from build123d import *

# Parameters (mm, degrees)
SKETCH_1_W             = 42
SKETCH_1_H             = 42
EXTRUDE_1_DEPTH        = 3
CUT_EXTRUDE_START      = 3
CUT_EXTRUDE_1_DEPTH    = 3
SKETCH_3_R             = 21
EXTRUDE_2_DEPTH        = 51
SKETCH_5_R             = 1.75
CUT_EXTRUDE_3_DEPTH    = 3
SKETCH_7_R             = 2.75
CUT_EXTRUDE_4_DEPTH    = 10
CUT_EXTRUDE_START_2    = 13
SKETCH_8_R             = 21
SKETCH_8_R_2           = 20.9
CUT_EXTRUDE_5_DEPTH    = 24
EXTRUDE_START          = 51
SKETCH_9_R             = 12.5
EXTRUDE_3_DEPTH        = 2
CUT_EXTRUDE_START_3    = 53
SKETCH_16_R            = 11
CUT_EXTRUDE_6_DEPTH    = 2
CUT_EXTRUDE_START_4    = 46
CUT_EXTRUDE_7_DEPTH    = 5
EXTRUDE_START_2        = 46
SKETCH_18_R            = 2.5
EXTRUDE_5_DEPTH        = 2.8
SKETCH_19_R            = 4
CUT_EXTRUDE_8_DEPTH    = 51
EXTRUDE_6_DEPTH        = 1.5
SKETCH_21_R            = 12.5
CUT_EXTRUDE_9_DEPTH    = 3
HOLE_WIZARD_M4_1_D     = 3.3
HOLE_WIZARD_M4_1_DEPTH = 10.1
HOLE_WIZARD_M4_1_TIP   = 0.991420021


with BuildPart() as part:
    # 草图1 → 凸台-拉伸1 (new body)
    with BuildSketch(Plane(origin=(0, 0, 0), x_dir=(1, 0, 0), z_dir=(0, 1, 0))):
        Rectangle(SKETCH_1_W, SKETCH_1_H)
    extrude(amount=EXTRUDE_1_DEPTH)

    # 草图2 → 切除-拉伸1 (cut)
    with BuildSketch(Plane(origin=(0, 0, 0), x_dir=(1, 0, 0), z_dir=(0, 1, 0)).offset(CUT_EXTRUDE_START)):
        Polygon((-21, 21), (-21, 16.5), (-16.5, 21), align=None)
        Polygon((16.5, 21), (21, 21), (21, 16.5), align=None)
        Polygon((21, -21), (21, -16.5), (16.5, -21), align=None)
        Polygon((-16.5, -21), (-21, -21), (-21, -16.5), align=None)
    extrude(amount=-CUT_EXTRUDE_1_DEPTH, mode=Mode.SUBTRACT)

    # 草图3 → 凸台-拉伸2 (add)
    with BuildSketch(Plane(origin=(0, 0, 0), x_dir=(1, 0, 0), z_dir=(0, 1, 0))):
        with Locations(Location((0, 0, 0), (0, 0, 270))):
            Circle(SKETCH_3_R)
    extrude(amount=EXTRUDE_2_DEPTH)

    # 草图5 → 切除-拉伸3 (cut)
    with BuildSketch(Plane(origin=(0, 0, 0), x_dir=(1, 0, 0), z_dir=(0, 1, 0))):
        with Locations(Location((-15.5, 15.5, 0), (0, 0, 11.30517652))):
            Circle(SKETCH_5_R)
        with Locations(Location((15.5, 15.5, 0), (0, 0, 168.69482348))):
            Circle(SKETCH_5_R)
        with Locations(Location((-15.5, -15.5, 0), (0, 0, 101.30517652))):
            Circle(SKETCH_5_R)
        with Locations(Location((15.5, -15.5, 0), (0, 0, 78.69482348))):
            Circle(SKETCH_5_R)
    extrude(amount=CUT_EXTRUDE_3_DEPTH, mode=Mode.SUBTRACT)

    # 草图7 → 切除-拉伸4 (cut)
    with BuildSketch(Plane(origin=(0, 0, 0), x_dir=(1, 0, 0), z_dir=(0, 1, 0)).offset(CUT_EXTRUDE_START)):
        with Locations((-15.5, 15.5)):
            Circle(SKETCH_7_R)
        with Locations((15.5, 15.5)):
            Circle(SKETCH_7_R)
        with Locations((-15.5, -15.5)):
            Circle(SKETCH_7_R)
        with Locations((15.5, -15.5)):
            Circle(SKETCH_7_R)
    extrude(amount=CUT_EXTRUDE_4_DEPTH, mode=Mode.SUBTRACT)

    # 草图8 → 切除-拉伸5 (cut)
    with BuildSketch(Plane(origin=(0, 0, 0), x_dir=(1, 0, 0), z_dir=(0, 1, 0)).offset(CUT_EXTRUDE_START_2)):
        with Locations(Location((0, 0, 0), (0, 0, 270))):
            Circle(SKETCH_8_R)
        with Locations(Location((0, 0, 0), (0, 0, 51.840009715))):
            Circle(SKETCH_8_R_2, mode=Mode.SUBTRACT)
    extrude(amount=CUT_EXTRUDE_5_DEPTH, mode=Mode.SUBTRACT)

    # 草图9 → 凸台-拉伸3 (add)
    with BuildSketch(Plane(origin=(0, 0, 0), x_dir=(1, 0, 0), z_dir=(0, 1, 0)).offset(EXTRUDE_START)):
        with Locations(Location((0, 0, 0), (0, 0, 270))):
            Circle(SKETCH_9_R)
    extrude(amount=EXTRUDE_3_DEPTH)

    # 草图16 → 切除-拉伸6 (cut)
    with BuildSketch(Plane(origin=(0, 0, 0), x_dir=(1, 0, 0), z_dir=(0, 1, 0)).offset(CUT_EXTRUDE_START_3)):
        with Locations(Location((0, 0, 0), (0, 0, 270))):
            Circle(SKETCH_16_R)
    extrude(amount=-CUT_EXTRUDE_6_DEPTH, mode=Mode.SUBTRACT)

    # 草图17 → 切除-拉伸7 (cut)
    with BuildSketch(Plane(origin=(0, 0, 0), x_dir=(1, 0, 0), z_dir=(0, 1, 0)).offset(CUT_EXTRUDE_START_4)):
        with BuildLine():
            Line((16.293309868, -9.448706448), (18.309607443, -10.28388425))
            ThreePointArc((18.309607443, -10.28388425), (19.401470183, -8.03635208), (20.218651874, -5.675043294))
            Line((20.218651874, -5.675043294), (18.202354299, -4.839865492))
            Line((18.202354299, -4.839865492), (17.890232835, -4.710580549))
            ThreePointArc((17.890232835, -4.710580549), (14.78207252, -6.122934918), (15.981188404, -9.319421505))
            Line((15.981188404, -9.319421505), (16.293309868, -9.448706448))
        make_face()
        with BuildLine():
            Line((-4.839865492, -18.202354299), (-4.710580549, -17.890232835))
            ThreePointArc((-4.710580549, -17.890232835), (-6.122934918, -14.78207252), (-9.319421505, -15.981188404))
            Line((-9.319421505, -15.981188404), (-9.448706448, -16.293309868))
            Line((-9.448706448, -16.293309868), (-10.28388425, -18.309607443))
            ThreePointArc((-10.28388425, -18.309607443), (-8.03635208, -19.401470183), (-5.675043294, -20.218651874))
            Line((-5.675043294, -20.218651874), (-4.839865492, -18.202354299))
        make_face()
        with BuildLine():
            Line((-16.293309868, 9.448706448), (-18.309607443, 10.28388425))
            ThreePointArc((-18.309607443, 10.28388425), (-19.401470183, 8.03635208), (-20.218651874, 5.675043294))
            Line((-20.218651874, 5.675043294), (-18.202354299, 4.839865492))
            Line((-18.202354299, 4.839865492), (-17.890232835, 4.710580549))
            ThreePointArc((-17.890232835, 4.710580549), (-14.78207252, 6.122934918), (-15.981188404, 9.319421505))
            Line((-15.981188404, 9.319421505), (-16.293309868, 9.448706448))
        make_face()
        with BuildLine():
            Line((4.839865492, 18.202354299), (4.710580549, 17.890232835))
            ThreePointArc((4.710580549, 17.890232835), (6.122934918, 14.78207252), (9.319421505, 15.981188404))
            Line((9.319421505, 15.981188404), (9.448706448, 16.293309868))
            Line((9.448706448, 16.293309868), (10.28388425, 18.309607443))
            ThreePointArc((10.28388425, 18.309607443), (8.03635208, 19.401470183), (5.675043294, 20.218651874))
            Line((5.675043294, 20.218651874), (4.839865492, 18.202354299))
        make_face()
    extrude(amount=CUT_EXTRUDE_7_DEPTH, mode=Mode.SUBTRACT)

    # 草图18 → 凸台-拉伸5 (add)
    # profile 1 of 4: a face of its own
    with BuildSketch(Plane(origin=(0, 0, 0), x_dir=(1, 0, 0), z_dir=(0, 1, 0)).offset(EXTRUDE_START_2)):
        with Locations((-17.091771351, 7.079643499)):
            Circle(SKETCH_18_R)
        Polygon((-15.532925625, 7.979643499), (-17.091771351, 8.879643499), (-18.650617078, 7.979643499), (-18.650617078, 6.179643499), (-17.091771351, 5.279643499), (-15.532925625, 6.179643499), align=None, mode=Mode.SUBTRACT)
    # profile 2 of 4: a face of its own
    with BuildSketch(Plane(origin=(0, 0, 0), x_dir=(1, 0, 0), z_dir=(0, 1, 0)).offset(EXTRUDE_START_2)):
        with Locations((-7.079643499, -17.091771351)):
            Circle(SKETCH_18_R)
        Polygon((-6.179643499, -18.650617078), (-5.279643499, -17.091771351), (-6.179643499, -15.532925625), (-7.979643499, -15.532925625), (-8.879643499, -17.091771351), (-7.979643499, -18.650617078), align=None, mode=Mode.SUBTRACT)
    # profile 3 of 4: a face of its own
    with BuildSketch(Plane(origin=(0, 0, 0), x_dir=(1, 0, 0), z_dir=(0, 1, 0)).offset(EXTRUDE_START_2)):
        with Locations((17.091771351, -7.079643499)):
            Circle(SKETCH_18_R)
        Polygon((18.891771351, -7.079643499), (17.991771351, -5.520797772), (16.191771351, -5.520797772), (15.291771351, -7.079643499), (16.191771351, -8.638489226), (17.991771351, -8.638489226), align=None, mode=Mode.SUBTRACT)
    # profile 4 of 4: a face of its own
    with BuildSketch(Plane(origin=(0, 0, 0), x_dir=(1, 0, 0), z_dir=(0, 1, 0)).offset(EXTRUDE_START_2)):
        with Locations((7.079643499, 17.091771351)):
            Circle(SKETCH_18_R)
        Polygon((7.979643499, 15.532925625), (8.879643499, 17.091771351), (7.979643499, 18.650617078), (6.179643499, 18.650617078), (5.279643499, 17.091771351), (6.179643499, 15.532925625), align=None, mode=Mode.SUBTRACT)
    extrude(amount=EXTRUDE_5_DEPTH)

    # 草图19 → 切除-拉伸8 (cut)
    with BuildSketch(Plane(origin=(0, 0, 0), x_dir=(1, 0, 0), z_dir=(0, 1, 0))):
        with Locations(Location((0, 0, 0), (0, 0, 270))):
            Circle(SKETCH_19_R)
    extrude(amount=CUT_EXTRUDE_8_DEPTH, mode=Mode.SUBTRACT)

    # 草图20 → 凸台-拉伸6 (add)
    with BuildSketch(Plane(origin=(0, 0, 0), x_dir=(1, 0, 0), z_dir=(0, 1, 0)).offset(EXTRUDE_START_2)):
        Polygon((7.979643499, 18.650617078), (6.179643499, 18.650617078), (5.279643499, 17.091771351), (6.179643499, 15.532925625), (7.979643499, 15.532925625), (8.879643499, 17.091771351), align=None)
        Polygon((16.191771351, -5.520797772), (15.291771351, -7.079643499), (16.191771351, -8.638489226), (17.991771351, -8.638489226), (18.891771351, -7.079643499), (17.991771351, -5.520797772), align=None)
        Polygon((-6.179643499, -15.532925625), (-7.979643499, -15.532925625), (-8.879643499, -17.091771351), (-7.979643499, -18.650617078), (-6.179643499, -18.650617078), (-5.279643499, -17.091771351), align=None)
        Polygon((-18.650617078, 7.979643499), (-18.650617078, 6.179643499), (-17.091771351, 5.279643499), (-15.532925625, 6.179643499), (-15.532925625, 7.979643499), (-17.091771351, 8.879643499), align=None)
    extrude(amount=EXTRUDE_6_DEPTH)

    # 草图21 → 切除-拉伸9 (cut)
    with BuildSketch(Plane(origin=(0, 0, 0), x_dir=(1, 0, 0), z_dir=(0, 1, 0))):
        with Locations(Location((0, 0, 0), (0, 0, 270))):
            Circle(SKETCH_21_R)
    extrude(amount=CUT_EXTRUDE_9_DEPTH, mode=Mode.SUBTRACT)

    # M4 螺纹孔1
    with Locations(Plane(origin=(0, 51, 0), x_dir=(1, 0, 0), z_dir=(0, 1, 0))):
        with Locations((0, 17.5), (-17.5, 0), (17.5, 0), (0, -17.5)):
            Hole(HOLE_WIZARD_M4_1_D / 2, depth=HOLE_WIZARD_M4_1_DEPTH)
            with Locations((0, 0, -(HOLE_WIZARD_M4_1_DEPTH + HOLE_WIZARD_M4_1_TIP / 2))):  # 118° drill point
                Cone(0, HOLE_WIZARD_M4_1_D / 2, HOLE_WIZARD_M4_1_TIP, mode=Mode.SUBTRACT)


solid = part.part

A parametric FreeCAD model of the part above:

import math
import FreeCAD as App
import Part
import Sketcher
Q = App.Units.Quantity

doc = App.newDocument("Part")
body = doc.addObject("PartDesign::Body", "Body")

# Sketch on XZ plane
sketch1 = body.newObject("Sketcher::SketchObject", "Sketch")
sketch1.AttachmentSupport = (doc.getObject("XZ_Plane"), [""])
sketch1.MapMode = "FlatFace"
sketch1.addGeometry([
    Part.LineSegment(App.Vector(-21, -21, 0), App.Vector(-21, 21, 0)),
    Part.LineSegment(App.Vector(-21, 21, 0), App.Vector(21, 21, 0)),
    Part.LineSegment(App.Vector(21, 21, 0), App.Vector(21, -21, 0)),
    Part.LineSegment(App.Vector(21, -21, 0), App.Vector(-21, -21, 0)),
], False)
sketch1.addConstraint([
    Sketcher.Constraint("Coincident", 0, 2, 1, 1),
    Sketcher.Constraint("Coincident", 1, 2, 2, 1),
    Sketcher.Constraint("Coincident", 2, 2, 3, 1),
    Sketcher.Constraint("Coincident", 3, 2, 0, 1),
    Sketcher.Constraint("Vertical", 0),
    Sketcher.Constraint("Horizontal", 1),
    Sketcher.Constraint("Vertical", 2),
    Sketcher.Constraint("Horizontal", 3),
    Sketcher.Constraint("Symmetric", 0, 2, 2, 2, -1, 1),
    Sketcher.Constraint("Equal", 3, 0),
    Sketcher.Constraint("DistanceX", 1, 1, 1, 2, 42.0),
])
pad1 = body.newObject("PartDesign::Pad", "Pad")
pad1.Profile = sketch1
pad1.Length = 3
pad1.Reversed = True

# Sketch on XZ plane
sketch2 = body.newObject("Sketcher::SketchObject", "Sketch001")
sketch2.AttachmentSupport = (doc.getObject("XZ_Plane"), [""])
sketch2.MapMode = "FlatFace"
sketch2.AttachmentOffset = App.Placement(App.Vector(0, 0, -3), App.Rotation())
sketch2.addGeometry([
    Part.LineSegment(App.Vector(-21, -21, 0), App.Vector(-21, -16.5, 0)),  # 0
    Part.LineSegment(App.Vector(-21, -16.5, 0), App.Vector(-16.5, -21, 0)),  # 1
    Part.LineSegment(App.Vector(-16.5, -21, 0), App.Vector(-21, -21, 0)),  # 2
    Part.LineSegment(App.Vector(21, -21, 0), App.Vector(16.5, -21, 0)),  # 3
    Part.LineSegment(App.Vector(16.5, -21, 0), App.Vector(21, -16.5, 0)),  # 4
    Part.LineSegment(App.Vector(21, -16.5, 0), App.Vector(21, -21, 0)),  # 5
    Part.LineSegment(App.Vector(21, 21, 0), App.Vector(21, 16.5, 0)),  # 6
    Part.LineSegment(App.Vector(21, 16.5, 0), App.Vector(16.5, 21, 0)),  # 7
    Part.LineSegment(App.Vector(16.5, 21, 0), App.Vector(21, 21, 0)),  # 8
    Part.LineSegment(App.Vector(-21, 21, 0), App.Vector(-16.5, 21, 0)),  # 9
    Part.LineSegment(App.Vector(-16.5, 21, 0), App.Vector(-21, 16.5, 0)),  # 10
    Part.LineSegment(App.Vector(-21, 16.5, 0), App.Vector(-21, 21, 0)),  # 11
], False)
sketch2.addConstraint([
    Sketcher.Constraint("Coincident", 0, 2, 1, 1),
    Sketcher.Constraint("Coincident", 1, 2, 2, 1),
    Sketcher.Constraint("Coincident", 2, 2, 0, 1),
    Sketcher.Constraint("Coincident", 3, 2, 4, 1),
    Sketcher.Constraint("Coincident", 4, 2, 5, 1),
    Sketcher.Constraint("Coincident", 5, 2, 3, 1),
    Sketcher.Constraint("Coincident", 6, 2, 7, 1),
    Sketcher.Constraint("Coincident", 7, 2, 8, 1),
    Sketcher.Constraint("Coincident", 8, 2, 6, 1),
    Sketcher.Constraint("Coincident", 9, 2, 10, 1),
    Sketcher.Constraint("Coincident", 10, 2, 11, 1),
    Sketcher.Constraint("Coincident", 11, 2, 9, 1),
    Sketcher.Constraint("Vertical", 0),
    Sketcher.Constraint("Horizontal", 2),
    Sketcher.Constraint("Horizontal", 3),
    Sketcher.Constraint("Vertical", 5),
    Sketcher.Constraint("Vertical", 6),
    Sketcher.Constraint("Horizontal", 8),
    Sketcher.Constraint("Horizontal", 9),
    Sketcher.Constraint("Vertical", 11),
    Sketcher.Constraint("Symmetric", 0, 2, 6, 2, -1, 1),
    Sketcher.Constraint("Symmetric", 1, 2, 7, 2, -1, 1),
    Sketcher.Constraint("Symmetric", 3, 2, 9, 2, -1, 1),
    Sketcher.Constraint("Symmetric", 4, 2, 10, 2, -1, 1),
    Sketcher.Constraint("Symmetric", 1, 2, 3, 2, -2),
    Sketcher.Constraint("Symmetric", 0, 2, 4, 2, -2),
    Sketcher.Constraint("Perpendicular", 1, 4),
    Sketcher.Constraint("DistanceX", 2, 2, 2, 1, 4.5),
    Sketcher.Constraint("DistanceX", 0, 2, -1, 1, 21.0),
    Sketcher.Constraint("DistanceY", 1, 2, -1, 1, 21.0),
])
pocket1 = body.newObject("PartDesign::Pocket", "Pocket")
pocket1.Profile = sketch2
pocket1.Length = 3
pocket1.Reversed = True

# Sketch on XZ plane
sketch3 = body.newObject("Sketcher::SketchObject", "Sketch002")
sketch3.AttachmentSupport = (doc.getObject("XZ_Plane"), [""])
sketch3.MapMode = "FlatFace"
sketch3.addGeometry(Part.Circle(App.Vector(0, 0, 0), App.Vector(0, 0, 1), 21), False)
sketch3.addConstraint([
    Sketcher.Constraint("Coincident", 0, 3, -1, 1),
    Sketcher.Constraint("Diameter", 0, 42.0),
])
pad2 = body.newObject("PartDesign::Pad", "Pad001")
pad2.Profile = sketch3
pad2.Length = 51
pad2.Reversed = True

# Sketch on XZ plane
sketch4 = body.newObject("Sketcher::SketchObject", "Sketch003")
sketch4.AttachmentSupport = (doc.getObject("XZ_Plane"), [""])
sketch4.MapMode = "FlatFace"
sketch4.addGeometry([
    Part.Circle(App.Vector(-15.5, -15.5, 0), App.Vector(0, 0, 1), 1.8),
    Part.Circle(App.Vector(15.5, -15.5, 0), App.Vector(0, 0, 1), 1.8),
    Part.Circle(App.Vector(-15.5, 15.5, 0), App.Vector(0, 0, 1), 1.8),
    Part.Circle(App.Vector(15.5, 15.5, 0), App.Vector(0, 0, 1), 1.8),
], False)
sketch4.addConstraint([
    Sketcher.Constraint("Equal", 0, 1),
    Sketcher.Constraint("Equal", 1, 2),
    Sketcher.Constraint("Equal", 2, 3),
    Sketcher.Constraint("Symmetric", 1, 3, 2, 3, -1, 1),
    Sketcher.Constraint("Symmetric", 0, 3, 3, 3, -1, 1),
    Sketcher.Constraint("Symmetric", 0, 3, 1, 3, -2),
    Sketcher.Constraint("Diameter", 0, 3.5),
    Sketcher.Constraint("DistanceX", 0, 3, 1, 3, 31.0),
    Sketcher.Constraint("DistanceY", 0, 3, 2, 3, 31.0),
])
pocket2 = body.newObject("PartDesign::Pocket", "Pocket001")
pocket2.Profile = sketch4
pocket2.Length = 3

# Sketch on XZ plane
sketch5 = body.newObject("Sketcher::SketchObject", "Sketch004")
sketch5.AttachmentSupport = (doc.getObject("XZ_Plane"), [""])
sketch5.MapMode = "FlatFace"
sketch5.AttachmentOffset = App.Placement(App.Vector(0, 0, -3), App.Rotation())
sketch5.addGeometry([
    Part.Circle(App.Vector(-15.5, -15.5, 0), App.Vector(0, 0, 1), 2.8),
    Part.Circle(App.Vector(15.5, -15.5, 0), App.Vector(0, 0, 1), 2.8),
    Part.Circle(App.Vector(-15.5, 15.5, 0), App.Vector(0, 0, 1), 2.8),
    Part.Circle(App.Vector(15.5, 15.5, 0), App.Vector(0, 0, 1), 2.8),
], False)
sketch5.addConstraint([
    Sketcher.Constraint("Equal", 0, 1),
    Sketcher.Constraint("Equal", 1, 2),
    Sketcher.Constraint("Equal", 2, 3),
    Sketcher.Constraint("Symmetric", 1, 3, 2, 3, -1, 1),
    Sketcher.Constraint("Symmetric", 0, 3, 3, 3, -1, 1),
    Sketcher.Constraint("Symmetric", 0, 3, 1, 3, -2),
    Sketcher.Constraint("Diameter", 0, 5.5),
    Sketcher.Constraint("DistanceX", 0, 3, 1, 3, 31.0),
    Sketcher.Constraint("DistanceY", 0, 3, 2, 3, 31.0),
])
pocket3 = body.newObject("PartDesign::Pocket", "Pocket002")
pocket3.Profile = sketch5
pocket3.Length = 10

# Sketch on XZ plane
sketch6 = body.newObject("Sketcher::SketchObject", "Sketch005")
sketch6.AttachmentSupport = (doc.getObject("XZ_Plane"), [""])
sketch6.MapMode = "FlatFace"
sketch6.AttachmentOffset = App.Placement(App.Vector(0, 0, -13), App.Rotation())
sketch6.addGeometry([
    Part.Circle(App.Vector(0, 0, 0), App.Vector(0, 0, 1), 21),
    Part.Circle(App.Vector(0, 0, 0), App.Vector(0, 0, 1), 21),
], False)
sketch6.addConstraint([
    Sketcher.Constraint("Coincident", 0, 3, -1, 1),
    Sketcher.Constraint("Coincident", 1, 3, -1, 1),
    Sketcher.Constraint("Diameter", 0, 42.0),
    Sketcher.Constraint("Diameter", 1, 41.8),
])
pocket4 = body.newObject("PartDesign::Pocket", "Pocket003")
pocket4.Profile = sketch6
pocket4.Length = 24

# Sketch on XZ plane
sketch7 = body.newObject("Sketcher::SketchObject", "Sketch006")
sketch7.AttachmentSupport = (doc.getObject("XZ_Plane"), [""])
sketch7.MapMode = "FlatFace"
sketch7.AttachmentOffset = App.Placement(App.Vector(0, 0, -51), App.Rotation())
sketch7.addGeometry(Part.Circle(App.Vector(0, 0, 0), App.Vector(0, 0, 1), 12), False)
sketch7.addConstraint([
    Sketcher.Constraint("Coincident", 0, 3, -1, 1),
    Sketcher.Constraint("Diameter", 0, 25.0),
])
pad3 = body.newObject("PartDesign::Pad", "Pad002")
pad3.Profile = sketch7
pad3.Length = 2
pad3.Reversed = True

# Sketch on XZ plane
sketch8 = body.newObject("Sketcher::SketchObject", "Sketch007")
sketch8.AttachmentSupport = (doc.getObject("XZ_Plane"), [""])
sketch8.MapMode = "FlatFace"
sketch8.AttachmentOffset = App.Placement(App.Vector(0, 0, -53), App.Rotation())
sketch8.addGeometry(Part.Circle(App.Vector(0, 0, 0), App.Vector(0, 0, 1), 11), False)
sketch8.addConstraint([
    Sketcher.Constraint("Coincident", 0, 3, -1, 1),
    Sketcher.Constraint("Diameter", 0, 22.0),
])
pocket5 = body.newObject("PartDesign::Pocket", "Pocket004")
pocket5.Profile = sketch8
pocket5.Length = 2
pocket5.Reversed = True

# Sketch on XZ plane
sketch9 = body.newObject("Sketcher::SketchObject", "Sketch008")
sketch9.AttachmentSupport = (doc.getObject("XZ_Plane"), [""])
sketch9.MapMode = "FlatFace"
sketch9.AttachmentOffset = App.Placement(App.Vector(0, 0, -46), App.Rotation())
sketch9.addGeometry([
    Part.LineSegment(App.Vector(16.29, 9.45, 0), App.Vector(18.31, 10.28, 0)),  # 0
    Part.ArcOfCircle(Part.Circle(App.Vector(0, 0, 0), App.Vector(0, 0, 1), 21), math.radians(15.68), math.radians(29.32)),  # 1
    Part.LineSegment(App.Vector(20.22, 5.68, 0), App.Vector(18.2, 4.84, 0)),  # 2
    Part.LineSegment(App.Vector(18.2, 4.84, 0), App.Vector(17.89, 4.71, 0)),  # 3
    Part.ArcOfCircle(Part.Circle(App.Vector(17.09, 7.08, 0), App.Vector(0, 0, 1), 2.5), math.radians(116), math.radians(289)),  # 4
    Part.LineSegment(App.Vector(15.98, 9.32, 0), App.Vector(16.29, 9.45, 0)),  # 5
    Part.LineSegment(App.Vector(-4.84, 18.2, 0), App.Vector(-4.71, 17.89, 0)),  # 6
    Part.ArcOfCircle(Part.Circle(App.Vector(-7.08, 17.09, 0), App.Vector(0, 0, 1), 2.5), math.radians(-154), math.radians(19)),  # 7
    Part.LineSegment(App.Vector(-9.32, 15.98, 0), App.Vector(-9.45, 16.29, 0)),  # 8
    Part.LineSegment(App.Vector(-9.45, 16.29, 0), App.Vector(-10.28, 18.31, 0)),  # 9
    Part.ArcOfCircle(Part.Circle(App.Vector(0, 0, 0), App.Vector(0, 0, 1), 21), math.radians(105.68), math.radians(119.32)),  # 10
    Part.LineSegment(App.Vector(-5.68, 20.22, 0), App.Vector(-4.84, 18.2, 0)),  # 11
    Part.LineSegment(App.Vector(-16.29, -9.45, 0), App.Vector(-18.31, -10.28, 0)),  # 12
    Part.ArcOfCircle(Part.Circle(App.Vector(0, 0, 0), App.Vector(0, 0, 1), 21), math.radians(-164.32), math.radians(-150.68)),  # 13
    Part.LineSegment(App.Vector(-20.22, -5.68, 0), App.Vector(-18.2, -4.84, 0)),  # 14
    Part.LineSegment(App.Vector(-18.2, -4.84, 0), App.Vector(-17.89, -4.71, 0)),  # 15
    Part.ArcOfCircle(Part.Circle(App.Vector(-17.09, -7.08, 0), App.Vector(0, 0, 1), 2.5), math.radians(-64), math.radians(109)),  # 16
    Part.LineSegment(App.Vector(-15.98, -9.32, 0), App.Vector(-16.29, -9.45, 0)),  # 17
    Part.LineSegment(App.Vector(4.84, -18.2, 0), App.Vector(4.71, -17.89, 0)),  # 18
    Part.ArcOfCircle(Part.Circle(App.Vector(7.08, -17.09, 0), App.Vector(0, 0, 1), 2.5), math.radians(26), math.radians(199)),  # 19
    Part.LineSegment(App.Vector(9.32, -15.98, 0), App.Vector(9.45, -16.29, 0)),  # 20
    Part.LineSegment(App.Vector(9.45, -16.29, 0), App.Vector(10.28, -18.31, 0)),  # 21
    Part.ArcOfCircle(Part.Circle(App.Vector(0, 0, 0), App.Vector(0, 0, 1), 21), math.radians(-74.32), math.radians(-60.68)),  # 22
    Part.LineSegment(App.Vector(5.68, -20.22, 0), App.Vector(4.84, -18.2, 0)),  # 23
], False)
sketch9.addConstraint([
    Sketcher.Constraint("Coincident", 0, 2, 1, 2),
    Sketcher.Constraint("Coincident", 1, 1, 2, 1),
    Sketcher.Constraint("Coincident", 2, 2, 3, 1),
    Sketcher.Constraint("Coincident", 3, 2, 4, 2),
    Sketcher.Constraint("Coincident", 4, 1, 5, 1),
    Sketcher.Constraint("Coincident", 5, 2, 0, 1),
    Sketcher.Constraint("Coincident", 6, 2, 7, 2),
    Sketcher.Constraint("Coincident", 7, 1, 8, 1),
    Sketcher.Constraint("Coincident", 8, 2, 9, 1),
    Sketcher.Constraint("Coincident", 9, 2, 10, 2),
    Sketcher.Constraint("Coincident", 10, 1, 11, 1),
    Sketcher.Constraint("Coincident", 11, 2, 6, 1),
    Sketcher.Constraint("Coincident", 12, 2, 13, 2),
    Sketcher.Constraint("Coincident", 13, 1, 14, 1),
    Sketcher.Constraint("Coincident", 14, 2, 15, 1),
    Sketcher.Constraint("Coincident", 15, 2, 16, 2),
    Sketcher.Constraint("Coincident", 16, 1, 17, 1),
    Sketcher.Constraint("Coincident", 17, 2, 12, 1),
    Sketcher.Constraint("Coincident", 18, 2, 19, 2),
    Sketcher.Constraint("Coincident", 19, 1, 20, 1),
    Sketcher.Constraint("Coincident", 20, 2, 21, 1),
    Sketcher.Constraint("Coincident", 21, 2, 22, 2),
    Sketcher.Constraint("Coincident", 22, 1, 23, 1),
    Sketcher.Constraint("Coincident", 23, 2, 18, 1),
    Sketcher.Constraint("Coincident", 1, 3, -1, 1),
    Sketcher.Constraint("Coincident", 10, 3, -1, 1),
    Sketcher.Constraint("Coincident", 13, 3, -1, 1),
    Sketcher.Constraint("Coincident", 22, 3, -1, 1),
    Sketcher.Constraint("Equal", 4, 7),
    Sketcher.Constraint("Equal", 1, 10),
    Sketcher.Constraint("Equal", 10, 13),
    Sketcher.Constraint("Equal", 7, 16),
    Sketcher.Constraint("Equal", 16, 19),
    Sketcher.Constraint("Equal", 13, 22),
    Sketcher.Constraint("Symmetric", 4, 3, 16, 3, -1, 1),
    Sketcher.Constraint("Symmetric", 7, 3, 19, 3, -1, 1),
    Sketcher.Constraint("Symmetric", 2, 2, 14, 2, -1, 1),
    Sketcher.Constraint("Symmetric", 5, 2, 17, 2, -1, 1),
    Sketcher.Constraint("Symmetric", 8, 2, 20, 2, -1, 1),
    Sketcher.Constraint("Symmetric", 11, 2, 23, 2, -1, 1),
    Sketcher.Constraint("Parallel", 0, 2),
    Sketcher.Constraint("Parallel", 2, 3),
    Sketcher.Constraint("Parallel", 3, 5),
    Sketcher.Constraint("Perpendicular", 5, 6),
    Sketcher.Constraint("Parallel", 6, 8),
    Sketcher.Constraint("Parallel", 8, 9),
    Sketcher.Constraint("Parallel", 9, 11),
    Sketcher.Constraint("Perpendicular", 11, 12),
    Sketcher.Constraint("Parallel", 12, 14),
    Sketcher.Constraint("Parallel", 14, 15),
    Sketcher.Constraint("Parallel", 15, 17),
    Sketcher.Constraint("Perpendicular", 17, 18),
    Sketcher.Constraint("Parallel", 18, 20),
    Sketcher.Constraint("Parallel", 20, 21),
    Sketcher.Constraint("Parallel", 21, 23),
    Sketcher.Constraint("Equal", 0, 2),
    Sketcher.Constraint("Equal", 3, 5),
    Sketcher.Constraint("Equal", 5, 6),
    Sketcher.Constraint("Equal", 6, 8),
    Sketcher.Constraint("Equal", 2, 9),
    Sketcher.Constraint("Equal", 9, 11),
    Sketcher.Constraint("Radius", 1, 21.0),
    Sketcher.Constraint("Radius", 4, 2.5),
    Sketcher.Constraint("Angle", 0, Q("22.5 deg")),
    Sketcher.Constraint("DistanceY", 1, 1, 4, 3, 1.4046),
    Sketcher.Constraint("DistanceX", 7, 3, 10, 1, 1.4046),
    Sketcher.Constraint("DistanceX", -1, 1, 4, 3, 17.091771),
    Sketcher.Constraint("DistanceY", -1, 1, 7, 3, 17.091771),
    Sketcher.Constraint("DistanceX", -1, 1, 1, 1, 20.218652),
    Sketcher.Constraint("DistanceX", -1, 1, 5, 2, 16.29331),
])
pocket6 = body.newObject("PartDesign::Pocket", "Pocket005")
pocket6.Profile = sketch9
pocket6.Length = 5

# Sketch on XZ plane
sketch10 = body.newObject("Sketcher::SketchObject", "Sketch009")
sketch10.AttachmentSupport = (doc.getObject("XZ_Plane"), [""])
sketch10.MapMode = "FlatFace"
sketch10.AttachmentOffset = App.Placement(App.Vector(0, 0, -46), App.Rotation())
sketch10.addGeometry([
    Part.Circle(App.Vector(-17.1, -7.1, 0), App.Vector(0, 0, 1), 2.5),  # 0
    Part.LineSegment(App.Vector(-17.1, -8.9, 0), App.Vector(-15.5, -8, 0)),  # 1
    Part.LineSegment(App.Vector(-15.5, -8, 0), App.Vector(-15.5, -6.2, 0)),  # 2
    Part.LineSegment(App.Vector(-15.5, -6.2, 0), App.Vector(-17.1, -5.3, 0)),  # 3
    Part.LineSegment(App.Vector(-17.1, -5.3, 0), App.Vector(-18.7, -6.2, 0)),  # 4
    Part.LineSegment(App.Vector(-18.7, -6.2, 0), App.Vector(-18.7, -8, 0)),  # 5
    Part.LineSegment(App.Vector(-18.7, -8, 0), App.Vector(-17.1, -8.9, 0)),  # 6
    Part.Circle(App.Vector(-7.1, 17.1, 0), App.Vector(0, 0, 1), 2.5),  # 7
    Part.LineSegment(App.Vector(-5.3, 17.1, 0), App.Vector(-6.2, 18.7, 0)),  # 8
    Part.LineSegment(App.Vector(-6.2, 18.7, 0), App.Vector(-8, 18.7, 0)),  # 9
    Part.LineSegment(App.Vector(-8, 18.7, 0), App.Vector(-8.9, 17.1, 0)),  # 10
    Part.LineSegment(App.Vector(-8.9, 17.1, 0), App.Vector(-8, 15.5, 0)),  # 11
    Part.LineSegment(App.Vector(-8, 15.5, 0), App.Vector(-6.2, 15.5, 0)),  # 12
    Part.LineSegment(App.Vector(-6.2, 15.5, 0), App.Vector(-5.3, 17.1, 0)),  # 13
    Part.Circle(App.Vector(17.1, 7.1, 0), App.Vector(0, 0, 1), 2.5),  # 14
    Part.LineSegment(App.Vector(18, 5.5, 0), App.Vector(18.9, 7.1, 0)),  # 15
    Part.LineSegment(App.Vector(18.9, 7.1, 0), App.Vector(18, 8.6, 0)),  # 16
    Part.LineSegment(App.Vector(18, 8.6, 0), App.Vector(16.2, 8.6, 0)),  # 17
    Part.LineSegment(App.Vector(16.2, 8.6, 0), App.Vector(15.3, 7.1, 0)),  # 18
    Part.LineSegment(App.Vector(15.3, 7.1, 0), App.Vector(16.2, 5.5, 0)),  # 19
    Part.LineSegment(App.Vector(16.2, 5.5, 0), App.Vector(18, 5.5, 0)),  # 20
    Part.Circle(App.Vector(7.1, -17.1, 0), App.Vector(0, 0, 1), 2.5),  # 21
    Part.LineSegment(App.Vector(8.9, -17.1, 0), App.Vector(8, -15.5, 0)),  # 22
    Part.LineSegment(App.Vector(8, -15.5, 0), App.Vector(6.2, -15.5, 0)),  # 23
    Part.LineSegment(App.Vector(6.2, -15.5, 0), App.Vector(5.3, -17.1, 0)),  # 24
    Part.LineSegment(App.Vector(5.3, -17.1, 0), App.Vector(6.2, -18.7, 0)),  # 25
    Part.LineSegment(App.Vector(6.2, -18.7, 0), App.Vector(8, -18.7, 0)),  # 26
    Part.LineSegment(App.Vector(8, -18.7, 0), App.Vector(8.9, -17.1, 0)),  # 27
], False)
sketch10.addConstraint([
    Sketcher.Constraint("Coincident", 1, 2, 2, 1),
    Sketcher.Constraint("Coincident", 2, 2, 3, 1),
    Sketcher.Constraint("Coincident", 3, 2, 4, 1),
    Sketcher.Constraint("Coincident", 4, 2, 5, 1),
    Sketcher.Constraint("Coincident", 5, 2, 6, 1),
    Sketcher.Constraint("Coincident", 6, 2, 1, 1),
    Sketcher.Constraint("Coincident", 8, 2, 9, 1),
    Sketcher.Constraint("Coincident", 9, 2, 10, 1),
    Sketcher.Constraint("Coincident", 10, 2, 11, 1),
    Sketcher.Constraint("Coincident", 11, 2, 12, 1),
    Sketcher.Constraint("Coincident", 12, 2, 13, 1),
    Sketcher.Constraint("Coincident", 13, 2, 8, 1),
    Sketcher.Constraint("Coincident", 15, 2, 16, 1),
    Sketcher.Constraint("Coincident", 16, 2, 17, 1),
    Sketcher.Constraint("Coincident", 17, 2, 18, 1),
    Sketcher.Constraint("Coincident", 18, 2, 19, 1),
    Sketcher.Constraint("Coincident", 19, 2, 20, 1),
    Sketcher.Constraint("Coincident", 20, 2, 15, 1),
    Sketcher.Constraint("Coincident", 22, 2, 23, 1),
    Sketcher.Constraint("Coincident", 23, 2, 24, 1),
    Sketcher.Constraint("Coincident", 24, 2, 25, 1),
    Sketcher.Constraint("Coincident", 25, 2, 26, 1),
    Sketcher.Constraint("Coincident", 26, 2, 27, 1),
    Sketcher.Constraint("Coincident", 27, 2, 22, 1),
    Sketcher.Constraint("Vertical", 2),
    Sketcher.Constraint("Vertical", 5),
    Sketcher.Constraint("Horizontal", 9),
    Sketcher.Constraint("Horizontal", 12),
    Sketcher.Constraint("Horizontal", 17),
    Sketcher.Constraint("Horizontal", 20),
    Sketcher.Constraint("Horizontal", 23),
    Sketcher.Constraint("Horizontal", 26),
    Sketcher.Constraint("Equal", 0, 7),
    Sketcher.Constraint("Equal", 7, 14),
    Sketcher.Constraint("Equal", 14, 21),
    Sketcher.Constraint("Symmetric", 0, 3, 14, 3, -1, 1),
    Sketcher.Constraint("Symmetric", 7, 3, 21, 3, -1, 1),
    Sketcher.Constraint("Symmetric", 11, 2, 22, 2, -1, 1),
    Sketcher.Constraint("Symmetric", 13, 2, 24, 2, -1, 1),
    Sketcher.Constraint("Symmetric", 8, 2, 25, 2, -1, 1),
    Sketcher.Constraint("Symmetric", 10, 2, 27, 2, -1, 1),
    Sketcher.Constraint("Parallel", 1, 4),
    Sketcher.Constraint("Parallel", 3, 6),
    Sketcher.Constraint("Perpendicular", 4, 8),
    Sketcher.Constraint("Perpendicular", 6, 10),
    Sketcher.Constraint("Parallel", 8, 11),
    Sketcher.Constraint("Parallel", 10, 13),
    Sketcher.Constraint("Parallel", 13, 15),
    Sketcher.Constraint("Parallel", 11, 16),
    Sketcher.Constraint("Parallel", 15, 18),
    Sketcher.Constraint("Parallel", 16, 19),
    Sketcher.Constraint("Parallel", 18, 24),
    Sketcher.Constraint("Parallel", 24, 27),
    Sketcher.Constraint("Horizontal", 2, 2, 4, 2),
    Sketcher.Constraint("Horizontal", 1, 2, 5, 2),
    Sketcher.Constraint("Horizontal", 7, 3, 10, 2),
    Sketcher.Constraint("Horizontal", 10, 2, 13, 2),
    Sketcher.Constraint("Horizontal", 14, 3, 15, 2),
    Sketcher.Constraint("Horizontal", 15, 2, 18, 2),
    Sketcher.Constraint("Vertical", 0, 3, 3, 2),
    Sketcher.Constraint("Vertical", 3, 2, 6, 2),
    Sketcher.Constraint("Vertical", 9, 2, 11, 2),
    Sketcher.Constraint("Vertical", 17, 2, 19, 2),
    Sketcher.Constraint("Equal", 12, 17),
    Sketcher.Constraint("Equal", 26, 2),
    Sketcher.Constraint("Equal", 6, 8),
    Sketcher.Constraint("Equal", 13, 15),
    Sketcher.Constraint("Diameter", 0, 5.0),
    Sketcher.Constraint("Angle", 1, Q("30 deg")),
    Sketcher.Constraint("DistanceX", 9, 2, 9, 1, 1.8),
    Sketcher.Constraint("Distance", 1, 1.8),
    Sketcher.Constraint("DistanceY", 1, 2, 0, 3, 0.9),
    Sketcher.Constraint("DistanceX", 7, 3, 8, 2, 0.9),
    Sketcher.Constraint("DistanceX", 14, 3, 15, 2, 1.8),
    Sketcher.Constraint("DistanceX", 0, 3, -1, 1, 17.091771),
    Sketcher.Constraint("DistanceY", -1, 1, 7, 3, 17.091771),
    Sketcher.Constraint("DistanceY", -1, 1, 16, 2, 8.638489),
    Sketcher.Constraint("DistanceX", 1, 2, 21, 3, 22.612569),
])
pad4 = body.newObject("PartDesign::Pad", "Pad003")
pad4.Profile = sketch10
pad4.Length = 2.8
pad4.Reversed = True

# Sketch on XZ plane
sketch11 = body.newObject("Sketcher::SketchObject", "Sketch010")
sketch11.AttachmentSupport = (doc.getObject("XZ_Plane"), [""])
sketch11.MapMode = "FlatFace"
sketch11.addGeometry(Part.Circle(App.Vector(0, 0, 0), App.Vector(0, 0, 1), 4), False)
sketch11.addConstraint([
    Sketcher.Constraint("Coincident", 0, 3, -1, 1),
    Sketcher.Constraint("Diameter", 0, 8.0),
])
pocket7 = body.newObject("PartDesign::Pocket", "Pocket006")
pocket7.Profile = sketch11
pocket7.Length = 51

# Sketch on XZ plane
sketch12 = body.newObject("Sketcher::SketchObject", "Sketch011")
sketch12.AttachmentSupport = (doc.getObject("XZ_Plane"), [""])
sketch12.MapMode = "FlatFace"
sketch12.AttachmentOffset = App.Placement(App.Vector(0, 0, -46), App.Rotation())
sketch12.addGeometry([
    Part.LineSegment(App.Vector(8, -18.7, 0), App.Vector(6.2, -18.7, 0)),  # 0
    Part.LineSegment(App.Vector(6.2, -18.7, 0), App.Vector(5.3, -17.1, 0)),  # 1
    Part.LineSegment(App.Vector(5.3, -17.1, 0), App.Vector(6.2, -15.5, 0)),  # 2
    Part.LineSegment(App.Vector(6.2, -15.5, 0), App.Vector(8, -15.5, 0)),  # 3
    Part.LineSegment(App.Vector(8, -15.5, 0), App.Vector(8.9, -17.1, 0)),  # 4
    Part.LineSegment(App.Vector(8.9, -17.1, 0), App.Vector(8, -18.7, 0)),  # 5
    Part.LineSegment(App.Vector(16.2, 5.5, 0), App.Vector(15.3, 7.1, 0)),  # 6
    Part.LineSegment(App.Vector(15.3, 7.1, 0), App.Vector(16.2, 8.6, 0)),  # 7
    Part.LineSegment(App.Vector(16.2, 8.6, 0), App.Vector(18, 8.6, 0)),  # 8
    Part.LineSegment(App.Vector(18, 8.6, 0), App.Vector(18.9, 7.1, 0)),  # 9
    Part.LineSegment(App.Vector(18.9, 7.1, 0), App.Vector(18, 5.5, 0)),  # 10
    Part.LineSegment(App.Vector(18, 5.5, 0), App.Vector(16.2, 5.5, 0)),  # 11
    Part.LineSegment(App.Vector(-6.2, 15.5, 0), App.Vector(-8, 15.5, 0)),  # 12
    Part.LineSegment(App.Vector(-8, 15.5, 0), App.Vector(-8.9, 17.1, 0)),  # 13
    Part.LineSegment(App.Vector(-8.9, 17.1, 0), App.Vector(-8, 18.7, 0)),  # 14
    Part.LineSegment(App.Vector(-8, 18.7, 0), App.Vector(-6.2, 18.7, 0)),  # 15
    Part.LineSegment(App.Vector(-6.2, 18.7, 0), App.Vector(-5.3, 17.1, 0)),  # 16
    Part.LineSegment(App.Vector(-5.3, 17.1, 0), App.Vector(-6.2, 15.5, 0)),  # 17
    Part.LineSegment(App.Vector(-18.7, -8, 0), App.Vector(-18.7, -6.2, 0)),  # 18
    Part.LineSegment(App.Vector(-18.7, -6.2, 0), App.Vector(-17.1, -5.3, 0)),  # 19
    Part.LineSegment(App.Vector(-17.1, -5.3, 0), App.Vector(-15.5, -6.2, 0)),  # 20
    Part.LineSegment(App.Vector(-15.5, -6.2, 0), App.Vector(-15.5, -8, 0)),  # 21
    Part.LineSegment(App.Vector(-15.5, -8, 0), App.Vector(-17.1, -8.9, 0)),  # 22
    Part.LineSegment(App.Vector(-17.1, -8.9, 0), App.Vector(-18.7, -8, 0)),  # 23
], False)
sketch12.addConstraint([
    Sketcher.Constraint("Coincident", 0, 2, 1, 1),
    Sketcher.Constraint("Coincident", 1, 2, 2, 1),
    Sketcher.Constraint("Coincident", 2, 2, 3, 1),
    Sketcher.Constraint("Coincident", 3, 2, 4, 1),
    Sketcher.Constraint("Coincident", 4, 2, 5, 1),
    Sketcher.Constraint("Coincident", 5, 2, 0, 1),
    Sketcher.Constraint("Coincident", 6, 2, 7, 1),
    Sketcher.Constraint("Coincident", 7, 2, 8, 1),
    Sketcher.Constraint("Coincident", 8, 2, 9, 1),
    Sketcher.Constraint("Coincident", 9, 2, 10, 1),
    Sketcher.Constraint("Coincident", 10, 2, 11, 1),
    Sketcher.Constraint("Coincident", 11, 2, 6, 1),
    Sketcher.Constraint("Coincident", 12, 2, 13, 1),
    Sketcher.Constraint("Coincident", 13, 2, 14, 1),
    Sketcher.Constraint("Coincident", 14, 2, 15, 1),
    Sketcher.Constraint("Coincident", 15, 2, 16, 1),
    Sketcher.Constraint("Coincident", 16, 2, 17, 1),
    Sketcher.Constraint("Coincident", 17, 2, 12, 1),
    Sketcher.Constraint("Coincident", 18, 2, 19, 1),
    Sketcher.Constraint("Coincident", 19, 2, 20, 1),
    Sketcher.Constraint("Coincident", 20, 2, 21, 1),
    Sketcher.Constraint("Coincident", 21, 2, 22, 1),
    Sketcher.Constraint("Coincident", 22, 2, 23, 1),
    Sketcher.Constraint("Coincident", 23, 2, 18, 1),
    Sketcher.Constraint("Horizontal", 0),
    Sketcher.Constraint("Horizontal", 3),
    Sketcher.Constraint("Horizontal", 8),
    Sketcher.Constraint("Horizontal", 11),
    Sketcher.Constraint("Horizontal", 12),
    Sketcher.Constraint("Horizontal", 15),
    Sketcher.Constraint("Vertical", 18),
    Sketcher.Constraint("Vertical", 21),
    Sketcher.Constraint("Symmetric", 3, 2, 12, 2, -1, 1),
    Sketcher.Constraint("Symmetric", 4, 2, 13, 2, -1, 1),
    Sketcher.Constraint("Symmetric", 5, 2, 14, 2, -1, 1),
    Sketcher.Constraint("Symmetric", 1, 2, 16, 2, -1, 1),
    Sketcher.Constraint("Parallel", 1, 4),
    Sketcher.Constraint("Parallel", 2, 5),
    Sketcher.Constraint("Parallel", 4, 6),
    Sketcher.Constraint("Parallel", 5, 7),
    Sketcher.Constraint("Parallel", 6, 9),
    Sketcher.Constraint("Parallel", 7, 10),
    Sketcher.Constraint("Parallel", 13, 16),
    Sketcher.Constraint("Parallel", 14, 17),
    Sketcher.Constraint("Perpendicular", 16, 19),
    Sketcher.Constraint("Perpendicular", 17, 20),
    Sketcher.Constraint("Parallel", 19, 22),
    Sketcher.Constraint("Parallel", 20, 23),
    Sketcher.Constraint("Horizontal", 1, 2, 4, 2),
    Sketcher.Constraint("Horizontal", 6, 2, 9, 2),
    Sketcher.Constraint("Horizontal", 18, 2, 20, 2),
    Sketcher.Constraint("Horizontal", 21, 2, 23, 2),
    Sketcher.Constraint("Vertical", 0, 2, 2, 2),
    Sketcher.Constraint("Vertical", 3, 2, 5, 2),
    Sketcher.Constraint("Vertical", 8, 2, 10, 2),
    Sketcher.Constraint("Equal", 3, 8),
    Sketcher.Constraint("Equal", 15, 18),
    Sketcher.Constraint("Equal", 5, 6),
    Sketcher.Constraint("Equal", 17, 19),
    Sketcher.Constraint("Angle", 1, Q("120 deg")),
    Sketcher.Constraint("DistanceX", 0, 2, 0, 1, 1.8),
    Sketcher.Constraint("Distance", 1, 1.8),
    Sketcher.Constraint("DistanceY", 1, 2, -1, 1, 17.091771),
    Sketcher.Constraint("DistanceX", -1, 1, 6, 2, 15.291771),
    Sketcher.Constraint("DistanceY", -1, 1, 7, 2, 8.638489),
    Sketcher.Constraint("DistanceX", 19, 2, -1, 1, 17.091771),
    Sketcher.Constraint("DistanceY", 18, 2, 12, 2, 21.712569),
    Sketcher.Constraint("DistanceX", 18, 2, 1, 2, 23.930261),
])
pad5 = body.newObject("PartDesign::Pad", "Pad004")
pad5.Profile = sketch12
pad5.Length = 1.5
pad5.Reversed = True

# Sketch on XZ plane
sketch13 = body.newObject("Sketcher::SketchObject", "Sketch012")
sketch13.AttachmentSupport = (doc.getObject("XZ_Plane"), [""])
sketch13.MapMode = "FlatFace"
sketch13.addGeometry(Part.Circle(App.Vector(0, 0, 0), App.Vector(0, 0, 1), 12), False)
sketch13.addConstraint([
    Sketcher.Constraint("Coincident", 0, 3, -1, 1),
    Sketcher.Constraint("Diameter", 0, 25.0),
])
pocket8 = body.newObject("PartDesign::Pocket", "Pocket007")
pocket8.Profile = sketch13
pocket8.Length = 3

# Sketch on XZ plane
sketch14 = body.newObject("Sketcher::SketchObject", "Sketch013")
sketch14.AttachmentSupport = (doc.getObject("XZ_Plane"), [""])
sketch14.MapMode = "FlatFace"
sketch14.AttachmentOffset = App.Placement(App.Vector(0, 0, -51), App.Rotation())
sketch14.addGeometry([
    Part.Circle(App.Vector(0, -17.5, 0), App.Vector(0, 0, 1), 1.6),
    Part.Circle(App.Vector(-17.5, 0, 0), App.Vector(0, 0, 1), 1.6),
    Part.Circle(App.Vector(17.5, 0, 0), App.Vector(0, 0, 1), 1.6),
    Part.Circle(App.Vector(0, 17.5, 0), App.Vector(0, 0, 1), 1.6),
], False)
sketch14.addConstraint([
    Sketcher.Constraint("Equal", 0, 1),
    Sketcher.Constraint("Equal", 1, 2),
    Sketcher.Constraint("Equal", 2, 3),
    Sketcher.Constraint("Symmetric", 1, 3, 2, 3, -1, 1),
    Sketcher.Constraint("Symmetric", 0, 3, 3, 3, -1, 1),
    Sketcher.Constraint("PointOnObject", 0, 3, -2),
    Sketcher.Constraint("PointOnObject", 1, 3, -1),
    Sketcher.Constraint("Diameter", 0, 3.3),
    Sketcher.Constraint("DistanceX", 1, 3, 2, 3, 35.0),
    Sketcher.Constraint("DistanceY", 0, 3, 3, 3, 35.0),
])
doc.recompute()
hole = body.newObject("PartDesign::Hole", "Hole")
hole.Profile = sketch14
hole.ThreadType = "None"
hole.Diameter = 3.3
hole.DepthType = "Dimension"
hole.Depth = 10.1
hole.DrillPoint = "Angled"
hole.DrillPointAngle = 118
hole.Reversed = True

doc.recompute()
